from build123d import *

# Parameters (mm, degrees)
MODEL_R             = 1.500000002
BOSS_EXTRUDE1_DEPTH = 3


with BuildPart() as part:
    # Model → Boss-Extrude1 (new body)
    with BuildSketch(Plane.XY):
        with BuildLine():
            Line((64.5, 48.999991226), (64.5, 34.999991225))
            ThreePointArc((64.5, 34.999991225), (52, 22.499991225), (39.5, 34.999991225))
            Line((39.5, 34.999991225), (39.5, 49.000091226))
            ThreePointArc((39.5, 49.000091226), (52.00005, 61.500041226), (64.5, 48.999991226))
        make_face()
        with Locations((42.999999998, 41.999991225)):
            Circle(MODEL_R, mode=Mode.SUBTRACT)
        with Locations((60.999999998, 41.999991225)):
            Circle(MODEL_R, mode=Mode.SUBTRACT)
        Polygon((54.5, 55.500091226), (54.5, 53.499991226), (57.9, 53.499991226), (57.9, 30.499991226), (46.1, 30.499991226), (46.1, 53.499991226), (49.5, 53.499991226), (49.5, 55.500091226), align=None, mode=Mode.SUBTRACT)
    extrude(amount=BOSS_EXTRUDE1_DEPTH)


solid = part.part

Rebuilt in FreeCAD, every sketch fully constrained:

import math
import FreeCAD as App
import Part
import Sketcher

V = App.Vector
Q = App.Units.Quantity


def add_polygon(sketch, points):
    """Adds a closed chain of lines whose ends are joined by coincident constraints."""
    first, n = sketch.GeometryCount, len(points)
    for a, b in zip(points, points[1:] + points[:1]):
        sketch.addGeometry(Part.LineSegment(App.Vector(*a, 0), App.Vector(*b, 0)), False)
    for i in range(n):
        sketch.addConstraint(Sketcher.Constraint("Coincident", first + i, 2, first + (i + 1) % n, 1))

doc = App.newDocument("Part")
body = doc.addObject("PartDesign::Body", "Body")

# Sketch on XY plane
sketch1 = body.newObject("Sketcher::SketchObject", "Sketch")
sketch1.AttachmentSupport = (doc.getObject("XY_Plane"), [""])
sketch1.MapMode = "FlatFace"
sketch1.addGeometry(Part.LineSegment(V(64.5, 35, 0), V(64.5, 49, 0)), False)  # 0
sketch1.addGeometry(Part.ArcOfCircle(Part.Circle(V(52, 49, 0), V(0, 0, 1), 12.5), math.radians(0), math.radians(180)), False)  # 1
sketch1.addGeometry(Part.LineSegment(V(39.5, 49, 0), V(39.5, 35, 0)), False)  # 2
sketch1.addGeometry(Part.ArcOfCircle(Part.Circle(V(52, 35, 0), V(0, 0, 1), 12.5), math.radians(180), math.radians(360)), False)  # 3
sketch1.addGeometry(Part.Circle(V(61, 42, 0), V(0, 0, 1), 1.5), False)  # 4
add_polygon(sketch1, [(54.5, 55.5), (54.5, 53.5), (57.9, 53.5), (57.9, 30.5), (46.1, 30.5), (46.1, 53.5), (49.5, 53.5), (49.5, 55.5)])  # lines 5-12
sketch1.addGeometry(Part.Circle(V(43, 42, 0), V(0, 0, 1), 1.5), False)  # 13
sketch1.addConstraint([
    Sketcher.Constraint("Coincident", 0, 2, 1, 1),
    Sketcher.Constraint("Coincident", 1, 2, 2, 1),
    Sketcher.Constraint("Tangent", 2, 2, 3, 1),
    Sketcher.Constraint("Tangent", 3, 2, 0, 1),
    Sketcher.Constraint("Vertical", 0),
    Sketcher.Constraint("Vertical", 2),
    Sketcher.Constraint("Vertical", 5),
    Sketcher.Constraint("Horizontal", 6),
    Sketcher.Constraint("Vertical", 7),
    Sketcher.Constraint("Horizontal", 8),
    Sketcher.Constraint("Vertical", 9),
    Sketcher.Constraint("Horizontal", 10),
    Sketcher.Constraint("Vertical", 11),
    Sketcher.Constraint("Horizontal", 12),
    Sketcher.Constraint("Equal", 4, 13),
    Sketcher.Constraint("Horizontal", 4, 3, 13, 3),
    Sketcher.Constraint("Horizontal", 6, 2, 9, 2),
    Sketcher.Constraint("Equal", 6, 10),
    Sketcher.Constraint("Diameter", 4, Q("3 mm")),
    Sketcher.Constraint("Radius", 1, Q("12.5 mm")),
    Sketcher.Constraint("DistanceX", 12, 1, 12, 2, Q("5 mm")),
    Sketcher.Constraint("DistanceY", 0, 1, 0, 2, Q("14 mm")),
    Sketcher.Constraint("DistanceY", 7, 2, 7, 1, Q("23 mm")),
    Sketcher.Constraint("DistanceX", 6, 1, 6, 2, Q("3.4 mm")),
    Sketcher.Constraint("DistanceX", -1, 1, 1, 3, Q("52 mm")),
    Sketcher.Constraint("DistanceX", -1, 1, 4, 3, Q("61 mm")),
    Sketcher.Constraint("DistanceX", -1, 1, 13, 3, Q("43 mm")),
    Sketcher.Constraint("DistanceY", 3, 3, 4, 3, Q("7 mm")),
    Sketcher.Constraint("DistanceX", 5, 2, 0, 2, Q("10 mm")),
    Sketcher.Constraint("DistanceY", 0, 2, 5, 2, Q("4.5 mm")),
    Sketcher.Constraint("DistanceY", 2, 2, 2, 1, Q("14.0001 mm")),
    Sketcher.Constraint("DistanceY", 5, 2, 5, 1, Q("2.0001 mm")),
    Sketcher.Constraint("DistanceY", -1, 1, 1, 3, Q("49.000041 mm")),
    Sketcher.Constraint("DistanceY", -1, 1, 3, 3, Q("34.999991 mm")),
])
pad1 = body.newObject("PartDesign::Pad", "Pad")
pad1.Profile = sketch1
pad1.Length = 3

doc.recompute()
